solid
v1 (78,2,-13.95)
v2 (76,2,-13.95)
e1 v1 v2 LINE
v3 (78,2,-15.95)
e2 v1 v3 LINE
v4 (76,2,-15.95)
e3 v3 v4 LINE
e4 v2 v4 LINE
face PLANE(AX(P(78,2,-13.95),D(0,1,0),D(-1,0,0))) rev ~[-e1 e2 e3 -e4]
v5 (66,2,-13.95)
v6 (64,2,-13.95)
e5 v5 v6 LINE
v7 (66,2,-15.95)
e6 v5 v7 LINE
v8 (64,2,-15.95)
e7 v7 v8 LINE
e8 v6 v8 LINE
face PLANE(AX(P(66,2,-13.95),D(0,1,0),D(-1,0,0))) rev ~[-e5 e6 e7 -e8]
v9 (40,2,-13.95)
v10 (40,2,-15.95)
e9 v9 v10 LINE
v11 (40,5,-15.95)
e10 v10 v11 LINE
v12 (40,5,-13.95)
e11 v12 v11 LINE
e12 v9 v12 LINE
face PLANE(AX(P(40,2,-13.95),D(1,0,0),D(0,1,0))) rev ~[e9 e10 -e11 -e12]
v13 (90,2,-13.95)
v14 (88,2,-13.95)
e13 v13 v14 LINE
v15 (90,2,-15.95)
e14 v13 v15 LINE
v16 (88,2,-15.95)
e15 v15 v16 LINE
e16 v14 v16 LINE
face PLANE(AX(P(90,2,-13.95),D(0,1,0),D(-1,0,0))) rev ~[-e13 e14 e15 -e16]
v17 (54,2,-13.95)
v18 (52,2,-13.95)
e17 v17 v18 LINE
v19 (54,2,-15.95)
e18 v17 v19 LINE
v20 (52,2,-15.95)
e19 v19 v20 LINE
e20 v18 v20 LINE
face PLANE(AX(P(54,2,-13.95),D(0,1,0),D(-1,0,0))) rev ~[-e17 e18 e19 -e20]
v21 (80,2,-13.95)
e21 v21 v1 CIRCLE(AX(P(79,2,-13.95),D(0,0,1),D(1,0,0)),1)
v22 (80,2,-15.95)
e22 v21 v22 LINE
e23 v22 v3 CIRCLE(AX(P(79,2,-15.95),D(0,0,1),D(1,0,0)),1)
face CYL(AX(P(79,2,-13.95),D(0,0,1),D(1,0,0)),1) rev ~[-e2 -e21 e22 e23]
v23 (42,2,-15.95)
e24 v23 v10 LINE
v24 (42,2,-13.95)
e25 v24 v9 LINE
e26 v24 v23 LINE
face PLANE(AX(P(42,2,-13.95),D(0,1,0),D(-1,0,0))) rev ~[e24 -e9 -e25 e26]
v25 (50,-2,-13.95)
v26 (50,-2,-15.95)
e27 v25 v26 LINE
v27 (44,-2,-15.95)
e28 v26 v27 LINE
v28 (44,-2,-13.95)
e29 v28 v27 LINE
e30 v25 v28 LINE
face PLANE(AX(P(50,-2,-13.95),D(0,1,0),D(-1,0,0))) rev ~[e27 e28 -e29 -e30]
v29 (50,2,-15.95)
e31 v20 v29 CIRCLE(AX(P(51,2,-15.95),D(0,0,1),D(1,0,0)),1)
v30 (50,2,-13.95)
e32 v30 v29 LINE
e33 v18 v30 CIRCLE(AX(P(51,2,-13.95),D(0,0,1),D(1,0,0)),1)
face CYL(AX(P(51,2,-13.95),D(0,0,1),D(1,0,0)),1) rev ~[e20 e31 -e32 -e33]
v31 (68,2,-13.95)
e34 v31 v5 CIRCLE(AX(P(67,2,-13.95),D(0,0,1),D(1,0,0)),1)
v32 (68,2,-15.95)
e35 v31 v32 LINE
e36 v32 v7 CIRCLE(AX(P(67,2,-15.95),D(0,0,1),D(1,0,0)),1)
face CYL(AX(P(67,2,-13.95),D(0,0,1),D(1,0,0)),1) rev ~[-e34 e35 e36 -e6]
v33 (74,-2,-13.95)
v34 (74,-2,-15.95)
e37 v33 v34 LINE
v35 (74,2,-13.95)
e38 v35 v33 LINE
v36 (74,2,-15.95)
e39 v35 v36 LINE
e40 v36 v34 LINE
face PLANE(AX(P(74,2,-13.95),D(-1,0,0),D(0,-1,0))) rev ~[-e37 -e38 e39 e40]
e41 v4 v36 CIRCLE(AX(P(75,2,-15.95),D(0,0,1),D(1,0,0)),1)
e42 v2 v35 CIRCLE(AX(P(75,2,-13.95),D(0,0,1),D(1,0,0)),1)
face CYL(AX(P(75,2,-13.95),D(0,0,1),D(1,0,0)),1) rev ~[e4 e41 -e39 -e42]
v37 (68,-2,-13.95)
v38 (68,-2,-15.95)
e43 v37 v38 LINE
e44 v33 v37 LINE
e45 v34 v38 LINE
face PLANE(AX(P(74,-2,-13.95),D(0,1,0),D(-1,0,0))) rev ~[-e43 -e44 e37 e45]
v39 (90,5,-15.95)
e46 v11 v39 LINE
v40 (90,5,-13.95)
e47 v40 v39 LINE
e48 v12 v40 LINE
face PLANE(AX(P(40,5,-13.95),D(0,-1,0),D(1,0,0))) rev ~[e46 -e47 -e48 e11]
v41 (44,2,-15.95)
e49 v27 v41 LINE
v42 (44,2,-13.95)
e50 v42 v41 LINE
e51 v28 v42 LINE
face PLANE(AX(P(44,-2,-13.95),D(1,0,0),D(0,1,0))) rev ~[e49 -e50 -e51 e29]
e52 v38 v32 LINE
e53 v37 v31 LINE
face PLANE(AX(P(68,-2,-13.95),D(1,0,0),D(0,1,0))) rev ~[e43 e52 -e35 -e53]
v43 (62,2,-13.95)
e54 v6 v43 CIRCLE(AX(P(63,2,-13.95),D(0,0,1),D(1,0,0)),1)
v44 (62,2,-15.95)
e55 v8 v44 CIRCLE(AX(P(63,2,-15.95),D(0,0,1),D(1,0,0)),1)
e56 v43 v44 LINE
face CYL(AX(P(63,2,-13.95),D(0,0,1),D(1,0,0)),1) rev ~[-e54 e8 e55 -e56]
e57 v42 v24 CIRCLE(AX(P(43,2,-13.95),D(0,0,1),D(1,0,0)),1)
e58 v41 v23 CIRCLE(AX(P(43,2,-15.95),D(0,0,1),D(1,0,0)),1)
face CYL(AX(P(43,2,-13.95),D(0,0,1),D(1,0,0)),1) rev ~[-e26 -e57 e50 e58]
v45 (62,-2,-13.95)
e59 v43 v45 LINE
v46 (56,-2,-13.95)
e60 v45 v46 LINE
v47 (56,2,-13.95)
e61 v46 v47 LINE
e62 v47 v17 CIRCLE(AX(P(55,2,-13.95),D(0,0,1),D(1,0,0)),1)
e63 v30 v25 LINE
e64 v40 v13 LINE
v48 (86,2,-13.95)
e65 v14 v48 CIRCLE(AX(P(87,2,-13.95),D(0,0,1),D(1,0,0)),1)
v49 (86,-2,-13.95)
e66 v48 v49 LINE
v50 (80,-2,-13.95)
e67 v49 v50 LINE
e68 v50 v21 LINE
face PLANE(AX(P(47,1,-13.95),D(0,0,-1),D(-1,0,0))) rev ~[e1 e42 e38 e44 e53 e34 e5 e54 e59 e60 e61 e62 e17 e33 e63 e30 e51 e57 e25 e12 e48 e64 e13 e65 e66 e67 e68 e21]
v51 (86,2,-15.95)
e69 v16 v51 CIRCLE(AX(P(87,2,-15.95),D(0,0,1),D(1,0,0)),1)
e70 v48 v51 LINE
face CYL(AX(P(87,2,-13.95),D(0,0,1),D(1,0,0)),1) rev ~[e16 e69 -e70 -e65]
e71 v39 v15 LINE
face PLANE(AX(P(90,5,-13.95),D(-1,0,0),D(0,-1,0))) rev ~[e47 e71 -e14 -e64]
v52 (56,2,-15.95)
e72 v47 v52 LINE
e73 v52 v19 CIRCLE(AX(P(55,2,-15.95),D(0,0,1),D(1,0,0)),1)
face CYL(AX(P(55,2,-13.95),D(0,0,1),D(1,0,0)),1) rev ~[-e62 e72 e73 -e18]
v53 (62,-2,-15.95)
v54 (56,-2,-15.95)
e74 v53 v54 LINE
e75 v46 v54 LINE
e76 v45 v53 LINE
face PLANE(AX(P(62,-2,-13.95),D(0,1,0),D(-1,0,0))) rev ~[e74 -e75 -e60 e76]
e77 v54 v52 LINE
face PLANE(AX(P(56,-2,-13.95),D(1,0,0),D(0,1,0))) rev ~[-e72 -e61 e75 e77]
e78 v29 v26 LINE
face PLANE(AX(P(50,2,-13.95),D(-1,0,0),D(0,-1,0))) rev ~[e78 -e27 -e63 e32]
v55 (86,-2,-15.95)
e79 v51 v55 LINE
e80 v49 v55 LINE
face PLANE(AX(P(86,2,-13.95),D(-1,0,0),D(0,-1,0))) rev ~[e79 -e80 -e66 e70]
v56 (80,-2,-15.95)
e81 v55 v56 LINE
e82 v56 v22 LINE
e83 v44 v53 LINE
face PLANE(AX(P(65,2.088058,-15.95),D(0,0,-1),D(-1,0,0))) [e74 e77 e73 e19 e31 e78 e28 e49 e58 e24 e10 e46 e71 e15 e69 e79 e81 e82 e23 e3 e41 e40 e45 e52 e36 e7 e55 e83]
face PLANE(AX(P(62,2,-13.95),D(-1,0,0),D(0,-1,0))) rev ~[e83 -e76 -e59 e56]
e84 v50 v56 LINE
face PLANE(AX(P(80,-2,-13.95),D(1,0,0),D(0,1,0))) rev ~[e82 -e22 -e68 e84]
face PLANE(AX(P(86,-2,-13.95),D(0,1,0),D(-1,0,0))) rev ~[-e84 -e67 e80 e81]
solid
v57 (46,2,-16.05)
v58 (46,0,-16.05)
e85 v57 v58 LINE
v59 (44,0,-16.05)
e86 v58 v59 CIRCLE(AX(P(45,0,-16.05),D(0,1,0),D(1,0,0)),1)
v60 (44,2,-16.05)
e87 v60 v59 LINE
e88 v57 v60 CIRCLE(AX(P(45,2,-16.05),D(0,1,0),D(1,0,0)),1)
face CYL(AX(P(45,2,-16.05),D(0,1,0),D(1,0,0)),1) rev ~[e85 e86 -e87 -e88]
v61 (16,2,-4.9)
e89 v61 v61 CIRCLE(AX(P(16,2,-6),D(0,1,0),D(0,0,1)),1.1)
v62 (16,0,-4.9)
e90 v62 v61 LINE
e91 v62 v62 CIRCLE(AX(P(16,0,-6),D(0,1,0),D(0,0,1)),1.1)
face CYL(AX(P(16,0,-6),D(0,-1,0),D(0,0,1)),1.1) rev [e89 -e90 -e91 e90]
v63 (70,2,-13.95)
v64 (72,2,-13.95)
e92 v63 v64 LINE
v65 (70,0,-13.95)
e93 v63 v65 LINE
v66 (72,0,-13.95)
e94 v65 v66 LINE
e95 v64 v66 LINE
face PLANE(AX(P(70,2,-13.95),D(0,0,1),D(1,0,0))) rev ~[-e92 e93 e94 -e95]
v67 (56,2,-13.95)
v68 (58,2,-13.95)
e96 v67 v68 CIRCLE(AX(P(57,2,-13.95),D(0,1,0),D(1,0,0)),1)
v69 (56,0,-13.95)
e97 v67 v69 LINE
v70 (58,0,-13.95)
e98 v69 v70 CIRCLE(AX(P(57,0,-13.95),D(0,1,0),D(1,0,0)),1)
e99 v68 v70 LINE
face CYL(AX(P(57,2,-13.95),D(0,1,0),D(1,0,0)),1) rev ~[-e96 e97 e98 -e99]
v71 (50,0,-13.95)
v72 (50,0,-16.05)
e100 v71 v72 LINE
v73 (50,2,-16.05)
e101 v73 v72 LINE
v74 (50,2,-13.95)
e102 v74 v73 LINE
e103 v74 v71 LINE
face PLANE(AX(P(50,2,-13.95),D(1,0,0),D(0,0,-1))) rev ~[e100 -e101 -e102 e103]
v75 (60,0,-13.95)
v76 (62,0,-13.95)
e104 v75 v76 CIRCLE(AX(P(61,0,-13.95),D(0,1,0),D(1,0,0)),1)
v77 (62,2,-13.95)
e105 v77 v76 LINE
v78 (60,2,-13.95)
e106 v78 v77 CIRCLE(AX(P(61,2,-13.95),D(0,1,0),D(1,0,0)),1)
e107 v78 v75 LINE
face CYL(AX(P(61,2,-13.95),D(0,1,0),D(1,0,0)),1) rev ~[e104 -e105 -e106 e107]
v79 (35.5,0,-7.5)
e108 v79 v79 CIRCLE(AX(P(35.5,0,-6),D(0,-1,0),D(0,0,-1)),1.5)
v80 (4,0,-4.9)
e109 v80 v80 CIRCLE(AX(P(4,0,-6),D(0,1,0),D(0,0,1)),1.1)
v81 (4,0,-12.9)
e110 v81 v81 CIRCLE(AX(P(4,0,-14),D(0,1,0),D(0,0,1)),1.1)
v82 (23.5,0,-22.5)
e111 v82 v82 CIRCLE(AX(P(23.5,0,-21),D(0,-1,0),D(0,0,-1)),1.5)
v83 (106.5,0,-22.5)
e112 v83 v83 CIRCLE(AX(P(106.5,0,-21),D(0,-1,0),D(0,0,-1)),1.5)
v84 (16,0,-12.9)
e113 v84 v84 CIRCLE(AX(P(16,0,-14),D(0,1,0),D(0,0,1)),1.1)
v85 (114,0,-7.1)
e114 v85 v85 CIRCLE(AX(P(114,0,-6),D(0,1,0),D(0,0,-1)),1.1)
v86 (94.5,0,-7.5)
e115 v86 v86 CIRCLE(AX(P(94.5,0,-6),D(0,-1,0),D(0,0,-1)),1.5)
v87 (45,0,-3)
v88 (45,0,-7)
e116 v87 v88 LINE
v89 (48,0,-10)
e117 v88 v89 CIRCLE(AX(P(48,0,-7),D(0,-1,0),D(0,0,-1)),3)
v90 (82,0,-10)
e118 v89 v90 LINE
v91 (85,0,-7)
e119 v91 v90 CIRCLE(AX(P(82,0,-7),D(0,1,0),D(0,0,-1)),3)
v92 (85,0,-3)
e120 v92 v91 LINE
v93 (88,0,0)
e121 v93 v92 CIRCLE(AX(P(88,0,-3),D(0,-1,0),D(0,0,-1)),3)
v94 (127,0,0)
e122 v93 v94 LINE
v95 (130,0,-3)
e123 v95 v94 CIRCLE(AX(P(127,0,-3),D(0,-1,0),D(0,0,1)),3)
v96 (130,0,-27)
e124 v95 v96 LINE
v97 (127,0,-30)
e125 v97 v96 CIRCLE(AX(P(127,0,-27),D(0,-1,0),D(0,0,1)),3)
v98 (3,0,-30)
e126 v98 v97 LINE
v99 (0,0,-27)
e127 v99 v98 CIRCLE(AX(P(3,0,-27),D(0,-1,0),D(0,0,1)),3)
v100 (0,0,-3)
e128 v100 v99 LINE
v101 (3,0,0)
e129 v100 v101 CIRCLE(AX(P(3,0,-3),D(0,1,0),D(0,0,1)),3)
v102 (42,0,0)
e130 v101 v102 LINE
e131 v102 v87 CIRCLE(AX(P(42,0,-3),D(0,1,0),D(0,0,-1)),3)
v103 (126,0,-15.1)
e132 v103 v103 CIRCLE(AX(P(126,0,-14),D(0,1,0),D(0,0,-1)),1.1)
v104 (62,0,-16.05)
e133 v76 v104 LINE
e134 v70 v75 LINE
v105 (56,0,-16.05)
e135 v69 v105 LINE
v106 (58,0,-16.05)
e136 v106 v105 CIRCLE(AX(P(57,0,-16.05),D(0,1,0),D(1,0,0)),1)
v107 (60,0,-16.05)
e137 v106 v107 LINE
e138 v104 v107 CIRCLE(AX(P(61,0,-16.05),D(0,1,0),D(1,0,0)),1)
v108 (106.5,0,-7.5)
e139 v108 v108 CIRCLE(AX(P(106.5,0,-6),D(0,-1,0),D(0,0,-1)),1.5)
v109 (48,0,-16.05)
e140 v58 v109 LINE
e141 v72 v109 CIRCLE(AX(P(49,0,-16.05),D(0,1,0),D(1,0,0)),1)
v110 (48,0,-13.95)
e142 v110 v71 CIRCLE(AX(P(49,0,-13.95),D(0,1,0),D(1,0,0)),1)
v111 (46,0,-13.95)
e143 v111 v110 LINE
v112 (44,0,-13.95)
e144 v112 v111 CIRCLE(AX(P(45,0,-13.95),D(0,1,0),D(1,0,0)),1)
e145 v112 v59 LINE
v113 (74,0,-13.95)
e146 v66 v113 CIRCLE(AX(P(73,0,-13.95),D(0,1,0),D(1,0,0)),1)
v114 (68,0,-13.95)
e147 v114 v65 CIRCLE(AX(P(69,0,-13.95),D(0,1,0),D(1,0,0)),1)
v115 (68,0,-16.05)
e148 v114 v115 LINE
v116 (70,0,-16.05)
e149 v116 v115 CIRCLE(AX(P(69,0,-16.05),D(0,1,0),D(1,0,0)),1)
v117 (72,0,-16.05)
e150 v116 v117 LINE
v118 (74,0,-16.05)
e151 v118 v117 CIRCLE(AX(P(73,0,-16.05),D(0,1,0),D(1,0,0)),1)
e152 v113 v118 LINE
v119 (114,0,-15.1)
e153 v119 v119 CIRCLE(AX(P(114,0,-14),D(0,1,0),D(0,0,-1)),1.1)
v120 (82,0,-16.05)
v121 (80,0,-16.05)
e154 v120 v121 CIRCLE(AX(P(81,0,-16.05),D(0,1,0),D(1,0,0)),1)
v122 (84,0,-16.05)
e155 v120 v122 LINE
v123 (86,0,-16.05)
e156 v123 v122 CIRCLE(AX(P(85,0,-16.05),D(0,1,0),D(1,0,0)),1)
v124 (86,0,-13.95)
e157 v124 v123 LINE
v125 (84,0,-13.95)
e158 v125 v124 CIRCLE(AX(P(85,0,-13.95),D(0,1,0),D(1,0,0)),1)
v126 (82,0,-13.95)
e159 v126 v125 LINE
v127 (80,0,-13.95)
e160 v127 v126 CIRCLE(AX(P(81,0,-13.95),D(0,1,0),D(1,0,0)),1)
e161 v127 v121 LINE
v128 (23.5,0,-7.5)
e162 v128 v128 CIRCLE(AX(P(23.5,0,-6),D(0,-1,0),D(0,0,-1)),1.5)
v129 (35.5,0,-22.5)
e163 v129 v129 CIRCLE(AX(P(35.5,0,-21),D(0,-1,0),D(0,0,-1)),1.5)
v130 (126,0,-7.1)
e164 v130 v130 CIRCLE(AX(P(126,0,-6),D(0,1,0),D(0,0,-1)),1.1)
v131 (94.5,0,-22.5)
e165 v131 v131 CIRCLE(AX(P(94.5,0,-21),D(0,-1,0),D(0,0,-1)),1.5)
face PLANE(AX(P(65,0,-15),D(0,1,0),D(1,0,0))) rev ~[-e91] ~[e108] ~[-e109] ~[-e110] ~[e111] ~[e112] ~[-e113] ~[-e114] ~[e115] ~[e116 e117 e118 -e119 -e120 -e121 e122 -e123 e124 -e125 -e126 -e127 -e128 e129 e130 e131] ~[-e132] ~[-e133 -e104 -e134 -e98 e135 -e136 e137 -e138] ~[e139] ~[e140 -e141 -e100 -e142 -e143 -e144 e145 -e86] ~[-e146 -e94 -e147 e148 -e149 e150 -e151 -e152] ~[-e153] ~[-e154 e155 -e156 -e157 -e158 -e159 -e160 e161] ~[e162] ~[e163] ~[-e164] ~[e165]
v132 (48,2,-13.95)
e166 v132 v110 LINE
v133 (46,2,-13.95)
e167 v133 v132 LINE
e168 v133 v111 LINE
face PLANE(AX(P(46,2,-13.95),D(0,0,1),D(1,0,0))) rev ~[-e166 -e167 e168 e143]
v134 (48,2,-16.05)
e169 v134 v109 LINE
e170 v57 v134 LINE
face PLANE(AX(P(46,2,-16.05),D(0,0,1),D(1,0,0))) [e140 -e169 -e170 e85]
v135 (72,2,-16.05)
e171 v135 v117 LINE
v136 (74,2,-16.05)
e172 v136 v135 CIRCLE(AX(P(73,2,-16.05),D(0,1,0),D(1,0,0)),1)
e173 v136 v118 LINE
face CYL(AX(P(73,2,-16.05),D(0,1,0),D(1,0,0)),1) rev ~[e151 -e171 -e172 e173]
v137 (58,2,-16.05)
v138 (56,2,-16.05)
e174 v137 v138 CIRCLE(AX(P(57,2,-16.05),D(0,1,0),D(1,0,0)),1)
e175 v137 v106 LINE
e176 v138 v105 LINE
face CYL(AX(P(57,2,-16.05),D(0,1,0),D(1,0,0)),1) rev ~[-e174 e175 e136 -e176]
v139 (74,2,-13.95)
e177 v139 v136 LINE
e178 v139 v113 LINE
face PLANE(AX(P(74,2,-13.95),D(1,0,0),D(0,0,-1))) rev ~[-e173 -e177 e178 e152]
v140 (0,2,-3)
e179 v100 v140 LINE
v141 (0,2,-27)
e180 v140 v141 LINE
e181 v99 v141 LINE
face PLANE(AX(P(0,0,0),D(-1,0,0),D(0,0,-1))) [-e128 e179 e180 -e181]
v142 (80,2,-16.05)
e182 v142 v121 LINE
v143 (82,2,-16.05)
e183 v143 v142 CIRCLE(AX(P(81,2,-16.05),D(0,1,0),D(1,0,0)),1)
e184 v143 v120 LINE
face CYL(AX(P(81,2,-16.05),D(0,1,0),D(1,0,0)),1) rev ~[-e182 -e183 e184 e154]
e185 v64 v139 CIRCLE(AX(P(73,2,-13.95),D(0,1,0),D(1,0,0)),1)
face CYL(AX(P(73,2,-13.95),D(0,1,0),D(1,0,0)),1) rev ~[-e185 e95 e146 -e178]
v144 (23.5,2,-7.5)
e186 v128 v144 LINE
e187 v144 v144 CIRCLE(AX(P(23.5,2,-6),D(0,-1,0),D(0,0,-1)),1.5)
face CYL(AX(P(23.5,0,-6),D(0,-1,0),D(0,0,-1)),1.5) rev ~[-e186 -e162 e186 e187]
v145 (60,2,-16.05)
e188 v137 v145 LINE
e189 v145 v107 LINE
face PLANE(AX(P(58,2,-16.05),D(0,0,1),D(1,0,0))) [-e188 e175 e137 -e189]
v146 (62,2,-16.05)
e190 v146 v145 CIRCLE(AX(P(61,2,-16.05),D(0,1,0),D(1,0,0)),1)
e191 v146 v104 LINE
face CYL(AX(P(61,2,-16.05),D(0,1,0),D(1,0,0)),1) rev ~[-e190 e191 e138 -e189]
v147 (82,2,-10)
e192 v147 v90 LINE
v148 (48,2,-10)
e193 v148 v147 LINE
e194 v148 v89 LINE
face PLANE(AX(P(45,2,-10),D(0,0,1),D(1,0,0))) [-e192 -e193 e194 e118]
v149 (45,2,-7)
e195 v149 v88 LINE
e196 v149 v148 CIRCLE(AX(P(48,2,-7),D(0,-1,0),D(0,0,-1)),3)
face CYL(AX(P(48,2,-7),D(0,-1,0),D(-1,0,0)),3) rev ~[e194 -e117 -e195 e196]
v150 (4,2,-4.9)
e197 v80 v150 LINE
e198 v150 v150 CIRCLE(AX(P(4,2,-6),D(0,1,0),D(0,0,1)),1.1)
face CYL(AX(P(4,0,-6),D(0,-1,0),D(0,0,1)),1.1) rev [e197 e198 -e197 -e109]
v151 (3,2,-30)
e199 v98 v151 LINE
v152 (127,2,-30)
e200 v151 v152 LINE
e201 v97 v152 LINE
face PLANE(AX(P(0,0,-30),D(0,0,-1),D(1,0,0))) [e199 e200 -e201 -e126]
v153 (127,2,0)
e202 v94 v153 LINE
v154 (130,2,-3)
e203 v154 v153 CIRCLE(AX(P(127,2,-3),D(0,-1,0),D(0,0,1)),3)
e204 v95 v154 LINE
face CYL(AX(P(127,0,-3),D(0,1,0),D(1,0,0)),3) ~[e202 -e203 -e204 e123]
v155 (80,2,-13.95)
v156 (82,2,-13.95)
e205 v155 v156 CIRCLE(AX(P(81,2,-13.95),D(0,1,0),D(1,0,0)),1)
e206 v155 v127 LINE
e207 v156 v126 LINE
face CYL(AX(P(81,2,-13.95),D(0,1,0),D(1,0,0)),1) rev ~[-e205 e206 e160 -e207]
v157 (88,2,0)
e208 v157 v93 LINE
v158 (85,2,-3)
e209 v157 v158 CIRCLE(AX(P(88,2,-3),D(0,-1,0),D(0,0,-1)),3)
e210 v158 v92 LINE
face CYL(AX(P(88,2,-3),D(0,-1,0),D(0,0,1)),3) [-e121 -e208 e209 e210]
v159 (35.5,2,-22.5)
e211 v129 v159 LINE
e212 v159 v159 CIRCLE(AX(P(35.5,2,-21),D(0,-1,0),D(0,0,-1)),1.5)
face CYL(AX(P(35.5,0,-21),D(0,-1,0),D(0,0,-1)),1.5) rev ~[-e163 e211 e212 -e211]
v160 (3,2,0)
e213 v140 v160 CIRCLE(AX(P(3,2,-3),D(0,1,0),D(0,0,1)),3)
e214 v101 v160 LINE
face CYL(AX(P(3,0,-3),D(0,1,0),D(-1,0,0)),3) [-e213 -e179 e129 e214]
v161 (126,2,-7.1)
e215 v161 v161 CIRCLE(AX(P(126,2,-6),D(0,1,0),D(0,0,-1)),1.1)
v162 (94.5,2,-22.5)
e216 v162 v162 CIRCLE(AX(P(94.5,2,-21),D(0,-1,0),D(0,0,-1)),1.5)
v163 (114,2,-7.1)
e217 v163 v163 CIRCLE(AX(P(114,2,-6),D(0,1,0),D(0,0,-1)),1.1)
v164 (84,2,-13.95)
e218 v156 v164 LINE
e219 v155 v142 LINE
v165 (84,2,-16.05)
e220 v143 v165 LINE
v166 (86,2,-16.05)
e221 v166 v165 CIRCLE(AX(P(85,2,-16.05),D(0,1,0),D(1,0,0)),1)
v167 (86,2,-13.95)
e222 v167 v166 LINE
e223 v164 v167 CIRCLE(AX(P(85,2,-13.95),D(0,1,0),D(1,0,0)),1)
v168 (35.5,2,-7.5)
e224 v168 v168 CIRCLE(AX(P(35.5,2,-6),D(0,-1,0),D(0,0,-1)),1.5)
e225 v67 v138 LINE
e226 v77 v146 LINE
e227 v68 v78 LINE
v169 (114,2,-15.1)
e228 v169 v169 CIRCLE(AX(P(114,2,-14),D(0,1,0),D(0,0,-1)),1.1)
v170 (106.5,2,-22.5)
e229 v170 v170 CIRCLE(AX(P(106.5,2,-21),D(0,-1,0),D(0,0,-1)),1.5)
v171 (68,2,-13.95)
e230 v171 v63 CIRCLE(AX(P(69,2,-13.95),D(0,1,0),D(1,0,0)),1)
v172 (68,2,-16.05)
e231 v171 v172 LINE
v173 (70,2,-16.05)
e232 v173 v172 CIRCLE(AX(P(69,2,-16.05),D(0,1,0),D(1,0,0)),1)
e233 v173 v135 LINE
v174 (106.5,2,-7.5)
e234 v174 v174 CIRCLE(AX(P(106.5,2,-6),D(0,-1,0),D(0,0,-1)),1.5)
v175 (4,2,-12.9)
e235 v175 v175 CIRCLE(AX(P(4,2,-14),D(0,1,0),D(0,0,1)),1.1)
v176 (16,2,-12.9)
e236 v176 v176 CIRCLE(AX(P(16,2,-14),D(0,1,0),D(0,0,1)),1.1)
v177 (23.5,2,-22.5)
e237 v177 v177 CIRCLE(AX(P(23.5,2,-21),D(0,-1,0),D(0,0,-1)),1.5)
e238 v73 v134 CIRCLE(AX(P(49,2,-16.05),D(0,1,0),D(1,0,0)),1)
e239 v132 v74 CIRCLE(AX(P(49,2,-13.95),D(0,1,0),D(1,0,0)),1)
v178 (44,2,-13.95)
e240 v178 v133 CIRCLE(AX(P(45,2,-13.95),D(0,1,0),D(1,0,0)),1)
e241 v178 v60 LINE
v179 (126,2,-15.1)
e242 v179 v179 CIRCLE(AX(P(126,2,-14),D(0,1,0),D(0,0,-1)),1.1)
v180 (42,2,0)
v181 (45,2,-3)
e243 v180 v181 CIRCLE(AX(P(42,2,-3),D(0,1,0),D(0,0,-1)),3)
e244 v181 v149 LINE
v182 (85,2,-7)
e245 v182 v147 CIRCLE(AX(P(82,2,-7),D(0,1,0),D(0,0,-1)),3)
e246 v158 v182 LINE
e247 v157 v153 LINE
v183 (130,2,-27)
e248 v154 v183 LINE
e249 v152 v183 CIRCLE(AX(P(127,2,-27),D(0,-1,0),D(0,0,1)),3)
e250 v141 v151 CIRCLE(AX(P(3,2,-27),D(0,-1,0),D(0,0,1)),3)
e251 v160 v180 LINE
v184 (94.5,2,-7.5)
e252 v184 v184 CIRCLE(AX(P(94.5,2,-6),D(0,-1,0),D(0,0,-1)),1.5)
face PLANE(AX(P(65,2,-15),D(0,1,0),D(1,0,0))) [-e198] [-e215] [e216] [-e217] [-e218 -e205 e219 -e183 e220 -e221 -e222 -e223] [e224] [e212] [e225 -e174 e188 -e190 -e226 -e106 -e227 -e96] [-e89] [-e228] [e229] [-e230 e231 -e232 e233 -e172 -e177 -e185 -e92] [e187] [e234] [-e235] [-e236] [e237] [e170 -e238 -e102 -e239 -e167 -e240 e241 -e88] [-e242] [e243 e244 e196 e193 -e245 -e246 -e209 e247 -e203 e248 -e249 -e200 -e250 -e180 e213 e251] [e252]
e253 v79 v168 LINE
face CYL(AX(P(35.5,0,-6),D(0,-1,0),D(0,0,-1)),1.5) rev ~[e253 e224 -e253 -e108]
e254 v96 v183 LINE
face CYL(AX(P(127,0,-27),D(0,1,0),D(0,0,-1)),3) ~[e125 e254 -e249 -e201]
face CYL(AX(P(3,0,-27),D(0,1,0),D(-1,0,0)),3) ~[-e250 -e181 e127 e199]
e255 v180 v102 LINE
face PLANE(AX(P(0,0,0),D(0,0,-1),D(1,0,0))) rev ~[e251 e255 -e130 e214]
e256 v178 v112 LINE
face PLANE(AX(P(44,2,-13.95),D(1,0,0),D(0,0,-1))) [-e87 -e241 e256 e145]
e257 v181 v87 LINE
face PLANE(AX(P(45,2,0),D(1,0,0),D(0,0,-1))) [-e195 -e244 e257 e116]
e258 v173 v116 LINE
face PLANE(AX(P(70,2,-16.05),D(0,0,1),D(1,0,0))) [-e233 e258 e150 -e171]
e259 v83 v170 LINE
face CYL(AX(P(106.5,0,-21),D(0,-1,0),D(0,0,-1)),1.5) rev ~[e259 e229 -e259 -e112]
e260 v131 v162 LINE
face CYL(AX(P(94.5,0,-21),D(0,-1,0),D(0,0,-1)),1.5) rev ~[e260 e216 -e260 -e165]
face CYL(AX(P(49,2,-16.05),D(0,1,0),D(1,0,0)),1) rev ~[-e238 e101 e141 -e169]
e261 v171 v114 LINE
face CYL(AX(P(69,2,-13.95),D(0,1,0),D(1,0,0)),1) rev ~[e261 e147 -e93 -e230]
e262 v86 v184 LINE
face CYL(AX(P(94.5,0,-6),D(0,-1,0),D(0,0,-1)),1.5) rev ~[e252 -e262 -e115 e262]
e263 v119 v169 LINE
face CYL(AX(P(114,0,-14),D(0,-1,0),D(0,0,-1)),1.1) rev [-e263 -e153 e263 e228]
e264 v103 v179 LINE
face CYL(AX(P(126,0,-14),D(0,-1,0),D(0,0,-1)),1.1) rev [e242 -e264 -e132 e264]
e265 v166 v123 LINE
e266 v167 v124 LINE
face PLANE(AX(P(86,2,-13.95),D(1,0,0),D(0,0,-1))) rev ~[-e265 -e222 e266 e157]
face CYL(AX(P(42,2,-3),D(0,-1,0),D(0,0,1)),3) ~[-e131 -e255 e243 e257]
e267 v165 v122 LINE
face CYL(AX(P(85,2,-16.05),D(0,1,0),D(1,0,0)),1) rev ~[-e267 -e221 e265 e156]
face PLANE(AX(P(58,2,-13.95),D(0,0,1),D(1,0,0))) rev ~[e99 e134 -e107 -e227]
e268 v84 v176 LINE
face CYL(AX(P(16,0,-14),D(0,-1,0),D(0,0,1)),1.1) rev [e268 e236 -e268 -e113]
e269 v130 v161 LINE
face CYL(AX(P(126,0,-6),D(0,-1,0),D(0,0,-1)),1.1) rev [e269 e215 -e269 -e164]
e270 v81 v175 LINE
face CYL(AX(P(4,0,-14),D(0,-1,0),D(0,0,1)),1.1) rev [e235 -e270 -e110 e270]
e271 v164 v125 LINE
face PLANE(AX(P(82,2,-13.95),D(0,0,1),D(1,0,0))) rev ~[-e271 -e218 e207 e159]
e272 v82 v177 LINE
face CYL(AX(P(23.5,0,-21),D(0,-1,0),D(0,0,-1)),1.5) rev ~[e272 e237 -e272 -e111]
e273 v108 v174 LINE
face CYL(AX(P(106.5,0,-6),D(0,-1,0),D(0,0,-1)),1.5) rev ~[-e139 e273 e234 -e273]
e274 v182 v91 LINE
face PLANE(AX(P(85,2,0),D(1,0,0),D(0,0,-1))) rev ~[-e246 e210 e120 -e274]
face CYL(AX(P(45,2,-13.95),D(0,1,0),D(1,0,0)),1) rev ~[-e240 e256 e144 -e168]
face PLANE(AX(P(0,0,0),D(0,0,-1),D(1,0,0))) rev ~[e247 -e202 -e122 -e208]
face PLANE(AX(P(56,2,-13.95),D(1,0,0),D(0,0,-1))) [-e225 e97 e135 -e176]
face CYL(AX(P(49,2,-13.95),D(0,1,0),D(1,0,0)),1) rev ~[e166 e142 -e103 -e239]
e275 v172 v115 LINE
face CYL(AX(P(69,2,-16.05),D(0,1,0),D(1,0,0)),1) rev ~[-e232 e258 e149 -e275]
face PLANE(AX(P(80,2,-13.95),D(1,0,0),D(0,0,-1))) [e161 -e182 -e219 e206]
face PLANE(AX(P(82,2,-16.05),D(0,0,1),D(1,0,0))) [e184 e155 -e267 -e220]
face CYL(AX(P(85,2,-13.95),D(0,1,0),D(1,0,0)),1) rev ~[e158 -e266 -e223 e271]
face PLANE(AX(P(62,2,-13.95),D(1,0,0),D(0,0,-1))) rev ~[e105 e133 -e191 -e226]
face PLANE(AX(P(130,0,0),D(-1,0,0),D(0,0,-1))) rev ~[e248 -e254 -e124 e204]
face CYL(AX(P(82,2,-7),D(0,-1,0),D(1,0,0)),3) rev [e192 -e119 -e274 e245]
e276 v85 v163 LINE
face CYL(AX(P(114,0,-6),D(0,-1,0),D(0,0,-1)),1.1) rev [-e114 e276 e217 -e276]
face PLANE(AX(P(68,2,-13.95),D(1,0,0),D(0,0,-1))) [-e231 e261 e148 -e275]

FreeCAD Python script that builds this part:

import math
import FreeCAD as App
import Part
import Sketcher

V = App.Vector


def edges_at(feature, points):
    """Names of the edges that pass closest to the given points."""
    edges = feature.Shape.Edges
    near = lambda p: min(range(len(edges)), key=lambda i: edges[i].distToShape(Part.Vertex(*p))[0])
    return sorted({f"Edge{near(p) + 1}" for p in points})

doc = App.newDocument("Part")
body = doc.addObject("PartDesign::Body", "Body")

sketch1 = body.newObject("Sketcher::SketchObject", "Sketch")
sketch1.AttachmentSupport = (doc.getObject("XZ_Plane"), [""])
sketch1.MapMode = "FlatFace"
sketch1.addGeometry(Part.LineSegment(V(0, -30, 0), V(0, 0, 0)), False)
sketch1.addGeometry(Part.LineSegment(V(0, 0, 0), V(130, 0, 0)), False)
sketch1.addGeometry(Part.LineSegment(V(130, 0, 0), V(130, -30, 0)), False)
sketch1.addGeometry(Part.LineSegment(V(130, -30, 0), V(0, -30, 0)), False)
sketch1.addGeometry(Part.Circle(V(4, -6, 0), V(0, 0, 1), 1.1), False)
sketch1.addGeometry(Part.Circle(V(16, -6, 0), V(0, 0, 1), 1.1), False)
sketch1.addGeometry(Part.Circle(V(114, -6, 0), V(0, 0, 1), 1.1), False)
sketch1.addGeometry(Part.Circle(V(126, -6, 0), V(0, 0, 1), 1.1), False)
sketch1.addGeometry(Part.Circle(V(4, -14, 0), V(0, 0, 1), 1.1), False)
sketch1.addGeometry(Part.Circle(V(16, -14, 0), V(0, 0, 1), 1.1), False)
sketch1.addGeometry(Part.Circle(V(114, -14, 0), V(0, 0, 1), 1.1), False)
sketch1.addGeometry(Part.Circle(V(126, -14, 0), V(0, 0, 1), 1.1), False)
sketch1.addConstraint(Sketcher.Constraint("Coincident", 0, 2, 1, 1))
sketch1.addConstraint(Sketcher.Constraint("Coincident", 1, 2, 2, 1))
sketch1.addConstraint(Sketcher.Constraint("Coincident", 2, 2, 3, 1))
sketch1.addConstraint(Sketcher.Constraint("Coincident", 3, 2, 0, 1))
sketch1.addConstraint(Sketcher.Constraint("Vertical", 0))
sketch1.addConstraint(Sketcher.Constraint("Horizontal", 1))
sketch1.addConstraint(Sketcher.Constraint("Vertical", 2))
sketch1.addConstraint(Sketcher.Constraint("Horizontal", 3))
sketch1.addConstraint(Sketcher.Constraint("Coincident", 0, 2, -1, 1))
sketch1.addConstraint(Sketcher.Constraint("Equal", 4, 5))
sketch1.addConstraint(Sketcher.Constraint("Equal", 5, 6))
sketch1.addConstraint(Sketcher.Constraint("Equal", 6, 7))
sketch1.addConstraint(Sketcher.Constraint("Equal", 7, 8))
sketch1.addConstraint(Sketcher.Constraint("Equal", 8, 9))
sketch1.addConstraint(Sketcher.Constraint("Equal", 9, 10))
sketch1.addConstraint(Sketcher.Constraint("Equal", 10, 11))
sketch1.addConstraint(Sketcher.Constraint("Horizontal", 4, 3, 5, 3))
sketch1.addConstraint(Sketcher.Constraint("Horizontal", 5, 3, 6, 3))
sketch1.addConstraint(Sketcher.Constraint("Horizontal", 6, 3, 7, 3))
sketch1.addConstraint(Sketcher.Constraint("Horizontal", 8, 3, 9, 3))
sketch1.addConstraint(Sketcher.Constraint("Horizontal", 9, 3, 10, 3))
sketch1.addConstraint(Sketcher.Constraint("Horizontal", 10, 3, 11, 3))
sketch1.addConstraint(Sketcher.Constraint("Vertical", 4, 3, 8, 3))
sketch1.addConstraint(Sketcher.Constraint("Vertical", 5, 3, 9, 3))
sketch1.addConstraint(Sketcher.Constraint("Vertical", 6, 3, 10, 3))
sketch1.addConstraint(Sketcher.Constraint("Vertical", 7, 3, 11, 3))
sketch1.addConstraint(Sketcher.Constraint("Diameter", 4, 2.2))
sketch1.addConstraint(Sketcher.Constraint("DistanceX", 1, 1, 1, 2, 130.0))
sketch1.addConstraint(Sketcher.Constraint("DistanceY", 0, 1, 0, 2, 30.0))
sketch1.addConstraint(Sketcher.Constraint("DistanceX", -1, 1, 4, 3, 4.0))
sketch1.addConstraint(Sketcher.Constraint("DistanceY", 4, 3, -1, 1, 6.0))
sketch1.addConstraint(Sketcher.Constraint("DistanceX", -1, 1, 5, 3, 16.0))
sketch1.addConstraint(Sketcher.Constraint("DistanceX", -1, 1, 6, 3, 114.0))
sketch1.addConstraint(Sketcher.Constraint("DistanceX", -1, 1, 7, 3, 126.0))
sketch1.addConstraint(Sketcher.Constraint("DistanceY", 8, 3, -1, 1, 14.0))
pad1 = body.newObject("PartDesign::Pad", "Pad")
pad1.Profile = sketch1
pad1.Length = 2
pad1.Reversed = True

sketch2 = body.newObject("Sketcher::SketchObject", "Sketch001")
sketch2.AttachmentSupport = (doc.getObject("XZ_Plane"), [""])
sketch2.MapMode = "FlatFace"
sketch2.AttachmentOffset = App.Placement(V(0, 0, -2), App.Rotation())
sketch2.addGeometry(Part.LineSegment(V(45, -10, 0), V(45, 0, 0)), False)
sketch2.addGeometry(Part.LineSegment(V(45, 0, 0), V(85, 0, 0)), False)
sketch2.addGeometry(Part.LineSegment(V(85, 0, 0), V(85, -10, 0)), False)
sketch2.addGeometry(Part.LineSegment(V(85, -10, 0), V(45, -10, 0)), False)
sketch2.addConstraint(Sketcher.Constraint("Coincident", 0, 2, 1, 1))
sketch2.addConstraint(Sketcher.Constraint("Coincident", 1, 2, 2, 1))
sketch2.addConstraint(Sketcher.Constraint("Coincident", 2, 2, 3, 1))
sketch2.addConstraint(Sketcher.Constraint("Coincident", 3, 2, 0, 1))
sketch2.addConstraint(Sketcher.Constraint("Vertical", 0))
sketch2.addConstraint(Sketcher.Constraint("Horizontal", 1))
sketch2.addConstraint(Sketcher.Constraint("Vertical", 2))
sketch2.addConstraint(Sketcher.Constraint("Horizontal", 3))
sketch2.addConstraint(Sketcher.Constraint("PointOnObject", 0, 2, -1))
sketch2.addConstraint(Sketcher.Constraint("DistanceX", 1, 1, 1, 2, 40.0))
sketch2.addConstraint(Sketcher.Constraint("DistanceY", 0, 1, 0, 2, 10.0))
sketch2.addConstraint(Sketcher.Constraint("DistanceX", -1, 1, 0, 2, 45.0))
pocket1 = body.newObject("PartDesign::Pocket", "Pocket")
pocket1.Profile = sketch2
pocket1.Type = "ThroughAll"
pocket1.Reversed = True
doc.recompute()

fillet = body.newObject("PartDesign::Fillet", "Fillet")
fillet.Base = (pocket1, edges_at(pocket1, [
    (45, 1, 0),
    (45, 1, -10),
    (85, 1, -10),
    (85, 1, 0),
    (0, 1, -30),
    (130, 1, -30),
    (130, 1, 0),
    (0, 1, 0),
]))
fillet.Radius = 3

sketch3 = body.newObject("Sketcher::SketchObject", "Sketch002")
sketch3.AttachmentSupport = (doc.getObject("XZ_Plane"), [""])
sketch3.MapMode = "FlatFace"
sketch3.AttachmentOffset = App.Placement(V(0, 0, -2), App.Rotation())
sketch3.addGeometry(Part.ArcOfCircle(Part.Circle(V(45, -16.1, 0), V(0, 0, 1), 1), math.radians(180), math.radians(360)), False)
sketch3.addGeometry(Part.LineSegment(V(44, -16.1, 0), V(44, -13.9, 0)), False)
sketch3.addGeometry(Part.ArcOfCircle(Part.Circle(V(45, -13.9, 0), V(0, 0, 1), 1), math.radians(0), math.radians(180)), False)
sketch3.addGeometry(Part.LineSegment(V(46, -13.9, 0), V(48, -13.9, 0)), False)
sketch3.addGeometry(Part.ArcOfCircle(Part.Circle(V(49, -13.9, 0), V(0, 0, 1), 1), math.radians(0), math.radians(180)), False)
sketch3.addGeometry(Part.LineSegment(V(50, -13.9, 0), V(50, -16.1, 0)), False)
sketch3.addGeometry(Part.ArcOfCircle(Part.Circle(V(49, -16.1, 0), V(0, 0, 1), 1), math.radians(180), math.radians(360)), False)
sketch3.addGeometry(Part.LineSegment(V(48, -16.1, 0), V(46, -16.1, 0)), False)
sketch3.addGeometry(Part.ArcOfCircle(Part.Circle(V(57, -16.1, 0), V(0, 0, 1), 1), math.radians(180), math.radians(360)), False)
sketch3.addGeometry(Part.LineSegment(V(56, -16.1, 0), V(56, -13.9, 0)), False)
sketch3.addGeometry(Part.ArcOfCircle(Part.Circle(V(57, -13.9, 0), V(0, 0, 1), 1), math.radians(0), math.radians(180)), False)
sketch3.addGeometry(Part.LineSegment(V(58, -13.9, 0), V(60, -13.9, 0)), False)
sketch3.addGeometry(Part.ArcOfCircle(Part.Circle(V(61, -13.9, 0), V(0, 0, 1), 1), math.radians(0), math.radians(180)), False)
sketch3.addGeometry(Part.LineSegment(V(62, -13.9, 0), V(62, -16.1, 0)), False)
sketch3.addGeometry(Part.ArcOfCircle(Part.Circle(V(61, -16.1, 0), V(0, 0, 1), 1), math.radians(180), math.radians(360)), False)
sketch3.addGeometry(Part.LineSegment(V(60, -16.1, 0), V(58, -16.1, 0)), False)
sketch3.addGeometry(Part.ArcOfCircle(Part.Circle(V(69, -16.1, 0), V(0, 0, 1), 1), math.radians(180), math.radians(360)), False)
sketch3.addGeometry(Part.LineSegment(V(68, -16.1, 0), V(68, -13.9, 0)), False)
sketch3.addGeometry(Part.ArcOfCircle(Part.Circle(V(69, -13.9, 0), V(0, 0, 1), 1), math.radians(0), math.radians(180)), False)
sketch3.addGeometry(Part.LineSegment(V(70, -13.9, 0), V(72, -13.9, 0)), False)
sketch3.addGeometry(Part.ArcOfCircle(Part.Circle(V(73, -13.9, 0), V(0, 0, 1), 1), math.radians(0), math.radians(180)), False)
sketch3.addGeometry(Part.LineSegment(V(74, -13.9, 0), V(74, -16.1, 0)), False)
sketch3.addGeometry(Part.ArcOfCircle(Part.Circle(V(73, -16.1, 0), V(0, 0, 1), 1), math.radians(180), math.radians(360)), False)
sketch3.addGeometry(Part.LineSegment(V(72, -16.1, 0), V(70, -16.1, 0)), False)
sketch3.addGeometry(Part.ArcOfCircle(Part.Circle(V(81, -16.1, 0), V(0, 0, 1), 1), math.radians(180), math.radians(360)), False)
sketch3.addGeometry(Part.LineSegment(V(80, -16.1, 0), V(80, -13.9, 0)), False)
sketch3.addGeometry(Part.ArcOfCircle(Part.Circle(V(81, -13.9, 0), V(0, 0, 1), 1), math.radians(0), math.radians(180)), False)
sketch3.addGeometry(Part.LineSegment(V(82, -13.9, 0), V(84, -13.9, 0)), False)
sketch3.addGeometry(Part.ArcOfCircle(Part.Circle(V(85, -13.9, 0), V(0, 0, 1), 1), math.radians(0), math.radians(180)), False)
sketch3.addGeometry(Part.LineSegment(V(86, -13.9, 0), V(86, -16.1, 0)), False)
sketch3.addGeometry(Part.ArcOfCircle(Part.Circle(V(85, -16.1, 0), V(0, 0, 1), 1), math.radians(180), math.radians(360)), False)
sketch3.addGeometry(Part.LineSegment(V(84, -16.1, 0), V(82, -16.1, 0)), False)
sketch3.addConstraint(Sketcher.Constraint("Tangent", 0, 1, 1, 1))
sketch3.addConstraint(Sketcher.Constraint("Tangent", 1, 2, 2, 2))
sketch3.addConstraint(Sketcher.Constraint("Coincident", 2, 1, 3, 1))
sketch3.addConstraint(Sketcher.Constraint("Coincident", 3, 2, 4, 2))
sketch3.addConstraint(Sketcher.Constraint("Tangent", 4, 1, 5, 1))
sketch3.addConstraint(Sketcher.Constraint("Tangent", 5, 2, 6, 2))
sketch3.addConstraint(Sketcher.Constraint("Coincident", 6, 1, 7, 1))
sketch3.addConstraint(Sketcher.Constraint("Coincident", 7, 2, 0, 2))
sketch3.addConstraint(Sketcher.Constraint("Tangent", 8, 1, 9, 1))
sketch3.addConstraint(Sketcher.Constraint("Tangent", 9, 2, 10, 2))
sketch3.addConstraint(Sketcher.Constraint("Coincident", 10, 1, 11, 1))
sketch3.addConstraint(Sketcher.Constraint("Coincident", 11, 2, 12, 2))
sketch3.addConstraint(Sketcher.Constraint("Tangent", 12, 1, 13, 1))
sketch3.addConstraint(Sketcher.Constraint("Tangent", 13, 2, 14, 2))
sketch3.addConstraint(Sketcher.Constraint("Coincident", 14, 1, 15, 1))
sketch3.addConstraint(Sketcher.Constraint("Coincident", 15, 2, 8, 2))
sketch3.addConstraint(Sketcher.Constraint("Tangent", 16, 1, 17, 1))
sketch3.addConstraint(Sketcher.Constraint("Tangent", 17, 2, 18, 2))
sketch3.addConstraint(Sketcher.Constraint("Coincident", 18, 1, 19, 1))
sketch3.addConstraint(Sketcher.Constraint("Coincident", 19, 2, 20, 2))
sketch3.addConstraint(Sketcher.Constraint("Tangent", 20, 1, 21, 1))
sketch3.addConstraint(Sketcher.Constraint("Tangent", 21, 2, 22, 2))
sketch3.addConstraint(Sketcher.Constraint("Coincident", 22, 1, 23, 1))
sketch3.addConstraint(Sketcher.Constraint("Coincident", 23, 2, 16, 2))
sketch3.addConstraint(Sketcher.Constraint("Tangent", 24, 1, 25, 1))
sketch3.addConstraint(Sketcher.Constraint("Tangent", 25, 2, 26, 2))
sketch3.addConstraint(Sketcher.Constraint("Coincident", 26, 1, 27, 1))
sketch3.addConstraint(Sketcher.Constraint("Coincident", 27, 2, 28, 2))
sketch3.addConstraint(Sketcher.Constraint("Tangent", 28, 1, 29, 1))
sketch3.addConstraint(Sketcher.Constraint("Tangent", 29, 2, 30, 2))
sketch3.addConstraint(Sketcher.Constraint("Coincident", 30, 1, 31, 1))
sketch3.addConstraint(Sketcher.Constraint("Coincident", 31, 2, 24, 2))
sketch3.addConstraint(Sketcher.Constraint("Vertical", 1))
sketch3.addConstraint(Sketcher.Constraint("Horizontal", 3))
sketch3.addConstraint(Sketcher.Constraint("Vertical", 5))
sketch3.addConstraint(Sketcher.Constraint("Horizontal", 7))
sketch3.addConstraint(Sketcher.Constraint("Vertical", 9))
sketch3.addConstraint(Sketcher.Constraint("Horizontal", 11))
sketch3.addConstraint(Sketcher.Constraint("Vertical", 13))
sketch3.addConstraint(Sketcher.Constraint("Horizontal", 15))
sketch3.addConstraint(Sketcher.Constraint("Vertical", 17))
sketch3.addConstraint(Sketcher.Constraint("Horizontal", 19))
sketch3.addConstraint(Sketcher.Constraint("Vertical", 21))
sketch3.addConstraint(Sketcher.Constraint("Horizontal", 23))
sketch3.addConstraint(Sketcher.Constraint("Vertical", 25))
sketch3.addConstraint(Sketcher.Constraint("Horizontal", 27))
sketch3.addConstraint(Sketcher.Constraint("Vertical", 29))
sketch3.addConstraint(Sketcher.Constraint("Horizontal", 31))
sketch3.addConstraint(Sketcher.Constraint("Equal", 0, 2))
sketch3.addConstraint(Sketcher.Constraint("Equal", 2, 4))
sketch3.addConstraint(Sketcher.Constraint("Equal", 4, 6))
sketch3.addConstraint(Sketcher.Constraint("Equal", 6, 8))
sketch3.addConstraint(Sketcher.Constraint("Equal", 8, 10))
sketch3.addConstraint(Sketcher.Constraint("Equal", 10, 12))
sketch3.addConstraint(Sketcher.Constraint("Equal", 12, 14))
sketch3.addConstraint(Sketcher.Constraint("Equal", 14, 16))
sketch3.addConstraint(Sketcher.Constraint("Equal", 16, 18))
sketch3.addConstraint(Sketcher.Constraint("Equal", 18, 20))
sketch3.addConstraint(Sketcher.Constraint("Equal", 20, 22))
sketch3.addConstraint(Sketcher.Constraint("Equal", 22, 24))
sketch3.addConstraint(Sketcher.Constraint("Equal", 24, 26))
sketch3.addConstraint(Sketcher.Constraint("Equal", 26, 28))
sketch3.addConstraint(Sketcher.Constraint("Equal", 28, 30))
sketch3.addConstraint(Sketcher.Constraint("Horizontal", 2, 3, 4, 3))
sketch3.addConstraint(Sketcher.Constraint("Horizontal", 0, 3, 6, 3))
sketch3.addConstraint(Sketcher.Constraint("Horizontal", 6, 3, 8, 3))
sketch3.addConstraint(Sketcher.Constraint("Horizontal", 4, 3, 10, 3))
sketch3.addConstraint(Sketcher.Constraint("Horizontal", 10, 3, 12, 3))
sketch3.addConstraint(Sketcher.Constraint("Horizontal", 8, 3, 14, 3))
sketch3.addConstraint(Sketcher.Constraint("Horizontal", 14, 3, 16, 3))
sketch3.addConstraint(Sketcher.Constraint("Horizontal", 12, 3, 18, 3))
sketch3.addConstraint(Sketcher.Constraint("Horizontal", 18, 3, 20, 3))
sketch3.addConstraint(Sketcher.Constraint("Horizontal", 16, 3, 22, 3))
sketch3.addConstraint(Sketcher.Constraint("Horizontal", 22, 3, 24, 3))
sketch3.addConstraint(Sketcher.Constraint("Horizontal", 20, 3, 26, 3))
sketch3.addConstraint(Sketcher.Constraint("Horizontal", 26, 3, 28, 3))
sketch3.addConstraint(Sketcher.Constraint("Horizontal", 24, 3, 30, 3))
sketch3.addConstraint(Sketcher.Constraint("Horizontal", 1, 2, 2, 1))
sketch3.addConstraint(Sketcher.Constraint("Horizontal", 5, 2, 6, 1))
sketch3.addConstraint(Sketcher.Constraint("Horizontal", 9, 2, 10, 1))
sketch3.addConstraint(Sketcher.Constraint("Horizontal", 13, 2, 14, 1))
sketch3.addConstraint(Sketcher.Constraint("Horizontal", 17, 2, 18, 1))
sketch3.addConstraint(Sketcher.Constraint("Horizontal", 21, 2, 22, 1))
sketch3.addConstraint(Sketcher.Constraint("Horizontal", 25, 2, 26, 1))
sketch3.addConstraint(Sketcher.Constraint("Horizontal", 29, 2, 30, 1))
sketch3.addConstraint(Sketcher.Constraint("Equal", 7, 11))
sketch3.addConstraint(Sketcher.Constraint("Equal", 15, 19))
sketch3.addConstraint(Sketcher.Constraint("Equal", 23, 27))
sketch3.addConstraint(Sketcher.Constraint("Radius", 0, 1.0))
sketch3.addConstraint(Sketcher.Constraint("DistanceX", 3, 1, 3, 2, 2.0))
sketch3.addConstraint(Sketcher.Constraint("DistanceY", 1, 1, 1, 2, 2.1))
sketch3.addConstraint(Sketcher.Constraint("DistanceX", -1, 1, 0, 3, 45.0))
sketch3.addConstraint(Sketcher.Constraint("DistanceX", -1, 1, 8, 3, 57.0))
sketch3.addConstraint(Sketcher.Constraint("DistanceX", -1, 1, 16, 3, 69.0))
sketch3.addConstraint(Sketcher.Constraint("DistanceX", -1, 1, 24, 3, 81.0))
sketch3.addConstraint(Sketcher.Constraint("DistanceY", 0, 3, -1, 1, 16.05))
pocket2 = body.newObject("PartDesign::Pocket", "Pocket001")
pocket2.Profile = sketch3
pocket2.Type = "ThroughAll"
pocket2.Reversed = True

sketch4 = body.newObject("Sketcher::SketchObject", "Sketch003")
sketch4.AttachmentSupport = (doc.getObject("XZ_Plane"), [""])
sketch4.MapMode = "FlatFace"
sketch4.addGeometry(Part.Circle(V(23.5, -6, 0), V(0, 0, 1), 1.5), False)
sketch4.addGeometry(Part.Circle(V(23.5, -21, 0), V(0, 0, 1), 1.5), False)
sketch4.addGeometry(Part.Circle(V(35.5, -21, 0), V(0, 0, 1), 1.5), False)
sketch4.addGeometry(Part.Circle(V(35.5, -6, 0), V(0, 0, 1), 1.5), False)
sketch4.addGeometry(Part.Circle(V(94.5, -21, 0), V(0, 0, 1), 1.5), False)
sketch4.addGeometry(Part.Circle(V(94.5, -6, 0), V(0, 0, 1), 1.5), False)
sketch4.addGeometry(Part.Circle(V(106.5, -6, 0), V(0, 0, 1), 1.5), False)
sketch4.addGeometry(Part.Circle(V(106.5, -21, 0), V(0, 0, 1), 1.5), False)
sketch4.addConstraint(Sketcher.Constraint("Equal", 0, 1))
sketch4.addConstraint(Sketcher.Constraint("Equal", 1, 2))
sketch4.addConstraint(Sketcher.Constraint("Equal", 2, 3))
sketch4.addConstraint(Sketcher.Constraint("Equal", 3, 4))
sketch4.addConstraint(Sketcher.Constraint("Equal", 4, 5))
sketch4.addConstraint(Sketcher.Constraint("Equal", 5, 6))
sketch4.addConstraint(Sketcher.Constraint("Equal", 6, 7))
sketch4.addConstraint(Sketcher.Constraint("Horizontal", 1, 3, 2, 3))
sketch4.addConstraint(Sketcher.Constraint("Horizontal", 0, 3, 3, 3))
sketch4.addConstraint(Sketcher.Constraint("Horizontal", 2, 3, 4, 3))
sketch4.addConstraint(Sketcher.Constraint("Horizontal", 3, 3, 5, 3))
sketch4.addConstraint(Sketcher.Constraint("Horizontal", 5, 3, 6, 3))
sketch4.addConstraint(Sketcher.Constraint("Horizontal", 4, 3, 7, 3))
sketch4.addConstraint(Sketcher.Constraint("Vertical", 0, 3, 1, 3))
sketch4.addConstraint(Sketcher.Constraint("Vertical", 2, 3, 3, 3))
sketch4.addConstraint(Sketcher.Constraint("Vertical", 4, 3, 5, 3))
sketch4.addConstraint(Sketcher.Constraint("Vertical", 6, 3, 7, 3))
sketch4.addConstraint(Sketcher.Constraint("Diameter", 0, 3.0))
sketch4.addConstraint(Sketcher.Constraint("DistanceY", 0, 3, -1, 1, 6.0))
sketch4.addConstraint(Sketcher.Constraint("DistanceY", 1, 3, -1, 1, 21.0))
sketch4.addConstraint(Sketcher.Constraint("DistanceX", 1, 3, 2, 3, 12.0))
sketch4.addConstraint(Sketcher.Constraint("DistanceX", 2, 3, 4, 3, 59.0))
sketch4.addConstraint(Sketcher.Constraint("DistanceX", 5, 3, 6, 3, 12.0))
sketch4.addConstraint(Sketcher.Constraint("DistanceX", -1, 1, 0, 3, 23.5))
pocket3 = body.newObject("PartDesign::Pocket", "Pocket002")
pocket3.Profile = sketch4
pocket3.Type = "ThroughAll"
body2 = doc.addObject("PartDesign::Body", "Body001")

sketch5 = body2.newObject("Sketcher::SketchObject", "Sketch004")
sketch5.AttachmentSupport = (doc.getObject("XY_Plane001"), [""])
sketch5.MapMode = "FlatFace"
sketch5.AttachmentOffset = App.Placement(V(0, 0, -13.95), App.Rotation())
sketch5.addGeometry(Part.LineSegment(V(44, -2, 0), V(44, 2, 0)), False)
sketch5.addGeometry(Part.ArcOfCircle(Part.Circle(V(43, 2, 0), V(0, 0, 1), 1), math.radians(0), math.radians(180)), False)
sketch5.addGeometry(Part.LineSegment(V(42, 2, 0), V(40, 2, 0)), False)
sketch5.addGeometry(Part.LineSegment(V(40, 2, 0), V(40, 5, 0)), False)
sketch5.addGeometry(Part.LineSegment(V(40, 5, 0), V(90, 5, 0)), False)
sketch5.addGeometry(Part.LineSegment(V(90, 5, 0), V(90, 2, 0)), False)
sketch5.addGeometry(Part.LineSegment(V(90, 2, 0), V(88, 2, 0)), False)
sketch5.addGeometry(Part.ArcOfCircle(Part.Circle(V(87, 2, 0), V(0, 0, 1), 1), math.radians(0), math.radians(180)), False)
sketch5.addGeometry(Part.LineSegment(V(86, 2, 0), V(86, -2, 0)), False)
sketch5.addGeometry(Part.LineSegment(V(86, -2, 0), V(80, -2, 0)), False)
sketch5.addGeometry(Part.LineSegment(V(80, -2, 0), V(80, 2, 0)), False)
sketch5.addGeometry(Part.ArcOfCircle(Part.Circle(V(79, 2, 0), V(0, 0, 1), 1), math.radians(0), math.radians(180)), False)
sketch5.addGeometry(Part.LineSegment(V(78, 2, 0), V(76, 2, 0)), False)
sketch5.addGeometry(Part.ArcOfCircle(Part.Circle(V(75, 2, 0), V(0, 0, 1), 1), math.radians(0), math.radians(180)), False)
sketch5.addGeometry(Part.LineSegment(V(74, 2, 0), V(74, -2, 0)), False)
sketch5.addGeometry(Part.LineSegment(V(74, -2, 0), V(68, -2, 0)), False)
sketch5.addGeometry(Part.LineSegment(V(68, -2, 0), V(68, 2, 0)), False)
sketch5.addGeometry(Part.ArcOfCircle(Part.Circle(V(67, 2, 0), V(0, 0, 1), 1), math.radians(0), math.radians(180)), False)
sketch5.addGeometry(Part.LineSegment(V(66, 2, 0), V(64, 2, 0)), False)
sketch5.addGeometry(Part.ArcOfCircle(Part.Circle(V(63, 2, 0), V(0, 0, 1), 1), math.radians(0), math.radians(180)), False)
sketch5.addGeometry(Part.LineSegment(V(62, 2, 0), V(62, -2, 0)), False)
sketch5.addGeometry(Part.LineSegment(V(62, -2, 0), V(56, -2, 0)), False)
sketch5.addGeometry(Part.LineSegment(V(56, -2, 0), V(56, 2, 0)), False)
sketch5.addGeometry(Part.ArcOfCircle(Part.Circle(V(55, 2, 0), V(0, 0, 1), 1), math.radians(0), math.radians(180)), False)
sketch5.addGeometry(Part.LineSegment(V(54, 2, 0), V(52, 2, 0)), False)
sketch5.addGeometry(Part.ArcOfCircle(Part.Circle(V(51, 2, 0), V(0, 0, 1), 1), math.radians(0), math.radians(180)), False)
sketch5.addGeometry(Part.LineSegment(V(50, 2, 0), V(50, -2, 0)), False)
sketch5.addGeometry(Part.LineSegment(V(50, -2, 0), V(44, -2, 0)), False)
sketch5.addConstraint(Sketcher.Constraint("Tangent", 0, 2, 1, 1))
sketch5.addConstraint(Sketcher.Constraint("Coincident", 1, 2, 2, 1))
sketch5.addConstraint(Sketcher.Constraint("Coincident", 2, 2, 3, 1))
sketch5.addConstraint(Sketcher.Constraint("Coincident", 3, 2, 4, 1))
sketch5.addConstraint(Sketcher.Constraint("Coincident", 4, 2, 5, 1))
sketch5.addConstraint(Sketcher.Constraint("Coincident", 5, 2, 6, 1))
sketch5.addConstraint(Sketcher.Constraint("Coincident", 6, 2, 7, 1))
sketch5.addConstraint(Sketcher.Constraint("Tangent", 7, 2, 8, 1))
sketch5.addConstraint(Sketcher.Constraint("Coincident", 8, 2, 9, 1))
sketch5.addConstraint(Sketcher.Constraint("Coincident", 9, 2, 10, 1))
sketch5.addConstraint(Sketcher.Constraint("Tangent", 10, 2, 11, 1))
sketch5.addConstraint(Sketcher.Constraint("Coincident", 11, 2, 12, 1))
sketch5.addConstraint(Sketcher.Constraint("Coincident", 12, 2, 13, 1))
sketch5.addConstraint(Sketcher.Constraint("Tangent", 13, 2, 14, 1))
sketch5.addConstraint(Sketcher.Constraint("Coincident", 14, 2, 15, 1))
sketch5.addConstraint(Sketcher.Constraint("Coincident", 15, 2, 16, 1))
sketch5.addConstraint(Sketcher.Constraint("Tangent", 16, 2, 17, 1))
sketch5.addConstraint(Sketcher.Constraint("Coincident", 17, 2, 18, 1))
sketch5.addConstraint(Sketcher.Constraint("Coincident", 18, 2, 19, 1))
sketch5.addConstraint(Sketcher.Constraint("Tangent", 19, 2, 20, 1))
sketch5.addConstraint(Sketcher.Constraint("Coincident", 20, 2, 21, 1))
sketch5.addConstraint(Sketcher.Constraint("Coincident", 21, 2, 22, 1))
sketch5.addConstraint(Sketcher.Constraint("Tangent", 22, 2, 23, 1))
sketch5.addConstraint(Sketcher.Constraint("Coincident", 23, 2, 24, 1))
sketch5.addConstraint(Sketcher.Constraint("Coincident", 24, 2, 25, 1))
sketch5.addConstraint(Sketcher.Constraint("Tangent", 25, 2, 26, 1))
sketch5.addConstraint(Sketcher.Constraint("Coincident", 26, 2, 27, 1))
sketch5.addConstraint(Sketcher.Constraint("Coincident", 27, 2, 0, 1))
sketch5.addConstraint(Sketcher.Constraint("Vertical", 0))
sketch5.addConstraint(Sketcher.Constraint("Horizontal", 2))
sketch5.addConstraint(Sketcher.Constraint("Vertical", 3))
sketch5.addConstraint(Sketcher.Constraint("Horizontal", 4))
sketch5.addConstraint(Sketcher.Constraint("Vertical", 5))
sketch5.addConstraint(Sketcher.Constraint("Horizontal", 6))
sketch5.addConstraint(Sketcher.Constraint("Vertical", 8))
sketch5.addConstraint(Sketcher.Constraint("Horizontal", 9))
sketch5.addConstraint(Sketcher.Constraint("Vertical", 10))
sketch5.addConstraint(Sketcher.Constraint("Horizontal", 12))
sketch5.addConstraint(Sketcher.Constraint("Vertical", 14))
sketch5.addConstraint(Sketcher.Constraint("Horizontal", 15))
sketch5.addConstraint(Sketcher.Constraint("Vertical", 16))
sketch5.addConstraint(Sketcher.Constraint("Horizontal", 18))
sketch5.addConstraint(Sketcher.Constraint("Vertical", 20))
sketch5.addConstraint(Sketcher.Constraint("Horizontal", 21))
sketch5.addConstraint(Sketcher.Constraint("Vertical", 22))
sketch5.addConstraint(Sketcher.Constraint("Horizontal", 24))
sketch5.addConstraint(Sketcher.Constraint("Vertical", 26))
sketch5.addConstraint(Sketcher.Constraint("Horizontal", 27))
sketch5.addConstraint(Sketcher.Constraint("Equal", 1, 7))
sketch5.addConstraint(Sketcher.Constraint("Equal", 7, 11))
sketch5.addConstraint(Sketcher.Constraint("Equal", 11, 13))
sketch5.addConstraint(Sketcher.Constraint("Equal", 13, 17))
sketch5.addConstraint(Sketcher.Constraint("Equal", 17, 19))
sketch5.addConstraint(Sketcher.Constraint("Equal", 19, 23))
sketch5.addConstraint(Sketcher.Constraint("Equal", 23, 25))
sketch5.addConstraint(Sketcher.Constraint("Horizontal", 1, 3, 7, 3))
sketch5.addConstraint(Sketcher.Constraint("Horizontal", 7, 3, 11, 3))
sketch5.addConstraint(Sketcher.Constraint("Horizontal", 11, 3, 13, 3))
sketch5.addConstraint(Sketcher.Constraint("Horizontal", 13, 3, 17, 3))
sketch5.addConstraint(Sketcher.Constraint("Horizontal", 17, 3, 19, 3))
sketch5.addConstraint(Sketcher.Constraint("Horizontal", 19, 3, 23, 3))
sketch5.addConstraint(Sketcher.Constraint("Horizontal", 23, 3, 25, 3))
sketch5.addConstraint(Sketcher.Constraint("Horizontal", 0, 2, 1, 2))
sketch5.addConstraint(Sketcher.Constraint("Horizontal", 2, 2, 5, 2))
sketch5.addConstraint(Sketcher.Constraint("Horizontal", 10, 2, 11, 2))
sketch5.addConstraint(Sketcher.Constraint("Horizontal", 9, 2, 14, 2))
sketch5.addConstraint(Sketcher.Constraint("Horizontal", 16, 2, 17, 2))
sketch5.addConstraint(Sketcher.Constraint("Horizontal", 15, 2, 20, 2))
sketch5.addConstraint(Sketcher.Constraint("Horizontal", 22, 2, 23, 2))
sketch5.addConstraint(Sketcher.Constraint("Horizontal", 21, 2, 26, 2))
sketch5.addConstraint(Sketcher.Constraint("Equal", 2, 6))
sketch5.addConstraint(Sketcher.Constraint("Equal", 6, 12))
sketch5.addConstraint(Sketcher.Constraint("Equal", 9, 15))
sketch5.addConstraint(Sketcher.Constraint("Equal", 12, 18))
sketch5.addConstraint(Sketcher.Constraint("Equal", 15, 21))
sketch5.addConstraint(Sketcher.Constraint("Equal", 18, 24))
sketch5.addConstraint(Sketcher.Constraint("Equal", 21, 27))
sketch5.addConstraint(Sketcher.Constraint("Radius", 1, 1.0))
sketch5.addConstraint(Sketcher.Constraint("DistanceX", 2, 2, 2, 1, 2.0))
sketch5.addConstraint(Sketcher.Constraint("DistanceX", 4, 1, 4, 2, 50.0))
sketch5.addConstraint(Sketcher.Constraint("DistanceY", 0, 1, 0, 2, 4.0))
sketch5.addConstraint(Sketcher.Constraint("DistanceY", 3, 1, 3, 2, 3.0))
sketch5.addConstraint(Sketcher.Constraint("DistanceX", -1, 1, 1, 3, 43.0))
sketch5.addConstraint(Sketcher.Constraint("DistanceY", -1, 1, 1, 3, 2.0))
pad2 = body2.newObject("PartDesign::Pad", "Pad001")
pad2.Profile = sketch5
pad2.Length = 2
pad2.Reversed = True

doc.recompute()
